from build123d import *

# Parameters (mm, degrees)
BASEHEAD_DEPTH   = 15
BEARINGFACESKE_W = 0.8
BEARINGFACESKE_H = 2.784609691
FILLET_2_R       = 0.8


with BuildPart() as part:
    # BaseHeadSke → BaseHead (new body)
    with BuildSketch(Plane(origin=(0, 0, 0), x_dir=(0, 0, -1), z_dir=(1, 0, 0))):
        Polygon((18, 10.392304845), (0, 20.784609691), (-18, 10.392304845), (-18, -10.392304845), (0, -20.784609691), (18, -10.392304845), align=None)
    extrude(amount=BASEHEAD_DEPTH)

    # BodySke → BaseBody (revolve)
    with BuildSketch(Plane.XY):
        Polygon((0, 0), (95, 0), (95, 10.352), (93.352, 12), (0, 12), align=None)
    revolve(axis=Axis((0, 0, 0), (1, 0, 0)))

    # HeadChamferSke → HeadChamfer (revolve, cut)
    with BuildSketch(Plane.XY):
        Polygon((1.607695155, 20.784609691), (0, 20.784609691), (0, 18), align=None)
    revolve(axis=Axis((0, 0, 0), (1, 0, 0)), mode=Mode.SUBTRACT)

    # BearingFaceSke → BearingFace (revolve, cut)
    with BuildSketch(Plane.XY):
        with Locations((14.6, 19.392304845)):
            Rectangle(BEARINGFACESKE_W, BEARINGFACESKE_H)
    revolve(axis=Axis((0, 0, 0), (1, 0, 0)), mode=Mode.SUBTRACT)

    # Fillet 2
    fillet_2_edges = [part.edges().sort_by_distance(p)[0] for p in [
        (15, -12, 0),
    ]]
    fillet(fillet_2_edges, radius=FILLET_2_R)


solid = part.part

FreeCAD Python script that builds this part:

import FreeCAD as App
import Part
import Sketcher
from FreeCAD import Vector
Q = App.Units.Quantity


def edges_at(feature, points):
    """Names of the edges that pass closest to the given points."""
    edges = feature.Shape.Edges
    near = lambda p: min(range(len(edges)), key=lambda i: edges[i].distToShape(Part.Vertex(*p))[0])
    return sorted({f"Edge{near(p) + 1}" for p in points})

doc = App.newDocument("Part")
body = doc.addObject("PartDesign::Body", "Body")

# Sketch on YZ plane
sketch1 = doc.addObject("Sketcher::SketchObject", "Sketch")
body.addObject(sketch1)
sketch1.AttachmentSupport = (doc.YZ_Plane, [""])
sketch1.MapMode = "FlatFace"
sketch1.addGeometry([
    Part.LineSegment(Vector(10, -18, 0), Vector(21, 0, 0)),  # 0
    Part.LineSegment(Vector(21, 0, 0), Vector(10, 18, 0)),  # 1
    Part.LineSegment(Vector(10, 18, 0), Vector(-10, 18, 0)),  # 2
    Part.LineSegment(Vector(-10, 18, 0), Vector(-21, 0, 0)),  # 3
    Part.LineSegment(Vector(-21, 0, 0), Vector(-10, -18, 0)),  # 4
    Part.LineSegment(Vector(-10, -18, 0), Vector(10, -18, 0)),  # 5
], False)
sketch1.addConstraint([
    Sketcher.Constraint("Coincident", 0, 2, 1, 1),
    Sketcher.Constraint("Coincident", 1, 2, 2, 1),
    Sketcher.Constraint("Coincident", 2, 2, 3, 1),
    Sketcher.Constraint("Coincident", 3, 2, 4, 1),
    Sketcher.Constraint("Coincident", 4, 2, 5, 1),
    Sketcher.Constraint("Coincident", 5, 2, 0, 1),
    Sketcher.Constraint("Horizontal", 2),
    Sketcher.Constraint("Horizontal", 5),
    Sketcher.Constraint("Symmetric", 0, 2, 3, 2, -1, 1),
    Sketcher.Constraint("Symmetric", 1, 2, 4, 2, -1, 1),
    Sketcher.Constraint("PointOnObject", 0, 2, -1),
    Sketcher.Constraint("Parallel", 0, 3),
    Sketcher.Constraint("Vertical", 2, 2, 4, 2),
    Sketcher.Constraint("Angle", 0, Q("60 deg")),
    Sketcher.Constraint("DistanceY", -1, 1, 1, 2, Q("18 mm")),
    Sketcher.Constraint("DistanceX", 2, 2, 2, 1, Q("20.78461 mm")),
])
pad1 = doc.addObject("PartDesign::Pad", "Pad")
body.addObject(pad1)
pad1.Profile = sketch1
pad1.Length = 15

# Sketch on XY plane
sketch2 = doc.addObject("Sketcher::SketchObject", "Sketch001")
body.addObject(sketch2)
sketch2.AttachmentSupport = (doc.XY_Plane, [""])
sketch2.MapMode = "FlatFace"
sketch2.addGeometry([
    Part.LineSegment(Vector(0, 0, 0), Vector(95, 0, 0)),  # 0
    Part.LineSegment(Vector(95, 0, 0), Vector(95, 10.4, 0)),  # 1
    Part.LineSegment(Vector(95, 10.4, 0), Vector(93.4, 12, 0)),  # 2
    Part.LineSegment(Vector(93.4, 12, 0), Vector(0, 12, 0)),  # 3
    Part.LineSegment(Vector(0, 12, 0), Vector(0, 0, 0)),  # 4
], False)
sketch2.addConstraint([
    Sketcher.Constraint("Coincident", 0, 2, 1, 1),
    Sketcher.Constraint("Coincident", 1, 2, 2, 1),
    Sketcher.Constraint("Coincident", 2, 2, 3, 1),
    Sketcher.Constraint("Coincident", 3, 2, 4, 1),
    Sketcher.Constraint("Coincident", 4, 2, 0, 1),
    Sketcher.Constraint("Horizontal", 0),
    Sketcher.Constraint("Vertical", 1),
    Sketcher.Constraint("Horizontal", 3),
    Sketcher.Constraint("Vertical", 4),
    Sketcher.Constraint("Coincident", 4, 2, -1, 1),
    Sketcher.Constraint("DistanceX", 0, 1, 0, 2, Q("95 mm")),
    Sketcher.Constraint("DistanceY", 4, 2, 4, 1, Q("12 mm")),
    Sketcher.Constraint("Angle", 2, Q("135 deg")),
    Sketcher.Constraint("DistanceX", 3, 2, 3, 1, Q("93.352 mm")),
])
revolution = doc.addObject("PartDesign::Revolution", "Revolution")
body.addObject(revolution)
revolution.Profile = sketch2
revolution.ReferenceAxis = (sketch2, ["H_Axis"])
revolution.Angle = 360

# Sketch on XY plane
sketch3 = doc.addObject("Sketcher::SketchObject", "Sketch002")
body.addObject(sketch3)
sketch3.AttachmentSupport = (doc.XY_Plane, [""])
sketch3.MapMode = "FlatFace"
sketch3.addGeometry([
    Part.LineSegment(Vector(1.6, 20.8, 0), Vector(0, 20.8, 0)),
    Part.LineSegment(Vector(0, 20.8, 0), Vector(0, 18, 0)),
    Part.LineSegment(Vector(0, 18, 0), Vector(1.6, 20.8, 0)),
], False)
sketch3.addConstraint([
    Sketcher.Constraint("Coincident", 0, 2, 1, 1),
    Sketcher.Constraint("Coincident", 1, 2, 2, 1),
    Sketcher.Constraint("Coincident", 2, 2, 0, 1),
    Sketcher.Constraint("Horizontal", 0),
    Sketcher.Constraint("Vertical", 1),
    Sketcher.Constraint("PointOnObject", 0, 2, -2),
    Sketcher.Constraint("Angle", 2, Q("60 deg")),
    Sketcher.Constraint("DistanceY", -1, 1, 1, 2, Q("18 mm")),
    Sketcher.Constraint("DistanceY", 1, 2, 1, 1, Q("2.78461 mm")),
])
groove = doc.addObject("PartDesign::Groove", "Groove")
body.addObject(groove)
groove.Profile = sketch3
groove.ReferenceAxis = (sketch3, ["H_Axis"])
groove.Angle = 360

# Sketch on XY plane
sketch4 = doc.addObject("Sketcher::SketchObject", "Sketch003")
body.addObject(sketch4)
sketch4.AttachmentSupport = (doc.XY_Plane, [""])
sketch4.MapMode = "FlatFace"
sketch4.addGeometry([
    Part.LineSegment(Vector(14.2, 20.8, 0), Vector(14.2, 18, 0)),
    Part.LineSegment(Vector(14.2, 18, 0), Vector(15, 18, 0)),
    Part.LineSegment(Vector(15, 18, 0), Vector(15, 20.8, 0)),
    Part.LineSegment(Vector(15, 20.8, 0), Vector(14.2, 20.8, 0)),
], False)
sketch4.addConstraint([
    Sketcher.Constraint("Coincident", 0, 2, 1, 1),
    Sketcher.Constraint("Coincident", 1, 2, 2, 1),
    Sketcher.Constraint("Coincident", 2, 2, 3, 1),
    Sketcher.Constraint("Coincident", 3, 2, 0, 1),
    Sketcher.Constraint("Vertical", 0),
    Sketcher.Constraint("Horizontal", 1),
    Sketcher.Constraint("Vertical", 2),
    Sketcher.Constraint("Horizontal", 3),
    Sketcher.Constraint("DistanceX", 1, 1, 1, 2, Q("0.8 mm")),
    Sketcher.Constraint("DistanceY", -1, 1, 0, 2, Q("18 mm")),
    Sketcher.Constraint("DistanceX", -1, 1, 1, 2, Q("15 mm")),
    Sketcher.Constraint("DistanceY", 0, 2, 0, 1, Q("2.78461 mm")),
])
groove2 = doc.addObject("PartDesign::Groove", "Groove001")
body.addObject(groove2)
groove2.Profile = sketch4
groove2.ReferenceAxis = (sketch4, ["H_Axis"])
groove2.Angle = 360
doc.recompute()

fillet = doc.addObject("PartDesign::Fillet", "Fillet")
body.addObject(fillet)
fillet.Base = (groove2, edges_at(groove2, [(15, -12, 0)]))
fillet.Radius = 0.8

doc.recompute()
